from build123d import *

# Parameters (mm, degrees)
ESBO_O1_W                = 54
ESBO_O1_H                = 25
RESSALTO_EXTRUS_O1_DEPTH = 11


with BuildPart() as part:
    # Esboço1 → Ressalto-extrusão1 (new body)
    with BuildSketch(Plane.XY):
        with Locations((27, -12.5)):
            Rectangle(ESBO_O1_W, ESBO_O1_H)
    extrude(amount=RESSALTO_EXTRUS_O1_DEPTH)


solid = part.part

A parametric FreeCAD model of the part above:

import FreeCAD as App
import Part
import Sketcher
from FreeCAD import Vector


def add_polygon(sketch, points):
    """Adds a closed chain of lines whose ends are joined by coincident constraints."""
    first, n = sketch.GeometryCount, len(points)
    for a, b in zip(points, points[1:] + points[:1]):
        sketch.addGeometry(Part.LineSegment(App.Vector(*a, 0), App.Vector(*b, 0)), False)
    for i in range(n):
        sketch.addConstraint(Sketcher.Constraint("Coincident", first + i, 2, first + (i + 1) % n, 1))

doc = App.newDocument("Part")
body = doc.addObject("PartDesign::Body", "Body")

sketch1 = doc.addObject("Sketcher::SketchObject", "Sketch")
body.addObject(sketch1)
sketch1.AttachmentSupport = (doc.XY_Plane, [""])
sketch1.MapMode = "FlatFace"
add_polygon(sketch1, [(0, 0), (0, -25), (54, -25), (54, 0)])
sketch1.addConstraint([
    Sketcher.Constraint("Vertical", 0),
    Sketcher.Constraint("Horizontal", 1),
    Sketcher.Constraint("Vertical", 2),
    Sketcher.Constraint("Horizontal", 3),
    Sketcher.Constraint("Coincident", 3, 2, -1, 1),
    Sketcher.Constraint("DistanceX", 1, 1, 1, 2, 54.0),
    Sketcher.Constraint("DistanceY", 0, 2, 0, 1, 25.0),
])
pad1 = doc.addObject("PartDesign::Pad", "Pad")
body.addObject(pad1)
pad1.Profile = sketch1
pad1.Length = 11

doc.recompute()
